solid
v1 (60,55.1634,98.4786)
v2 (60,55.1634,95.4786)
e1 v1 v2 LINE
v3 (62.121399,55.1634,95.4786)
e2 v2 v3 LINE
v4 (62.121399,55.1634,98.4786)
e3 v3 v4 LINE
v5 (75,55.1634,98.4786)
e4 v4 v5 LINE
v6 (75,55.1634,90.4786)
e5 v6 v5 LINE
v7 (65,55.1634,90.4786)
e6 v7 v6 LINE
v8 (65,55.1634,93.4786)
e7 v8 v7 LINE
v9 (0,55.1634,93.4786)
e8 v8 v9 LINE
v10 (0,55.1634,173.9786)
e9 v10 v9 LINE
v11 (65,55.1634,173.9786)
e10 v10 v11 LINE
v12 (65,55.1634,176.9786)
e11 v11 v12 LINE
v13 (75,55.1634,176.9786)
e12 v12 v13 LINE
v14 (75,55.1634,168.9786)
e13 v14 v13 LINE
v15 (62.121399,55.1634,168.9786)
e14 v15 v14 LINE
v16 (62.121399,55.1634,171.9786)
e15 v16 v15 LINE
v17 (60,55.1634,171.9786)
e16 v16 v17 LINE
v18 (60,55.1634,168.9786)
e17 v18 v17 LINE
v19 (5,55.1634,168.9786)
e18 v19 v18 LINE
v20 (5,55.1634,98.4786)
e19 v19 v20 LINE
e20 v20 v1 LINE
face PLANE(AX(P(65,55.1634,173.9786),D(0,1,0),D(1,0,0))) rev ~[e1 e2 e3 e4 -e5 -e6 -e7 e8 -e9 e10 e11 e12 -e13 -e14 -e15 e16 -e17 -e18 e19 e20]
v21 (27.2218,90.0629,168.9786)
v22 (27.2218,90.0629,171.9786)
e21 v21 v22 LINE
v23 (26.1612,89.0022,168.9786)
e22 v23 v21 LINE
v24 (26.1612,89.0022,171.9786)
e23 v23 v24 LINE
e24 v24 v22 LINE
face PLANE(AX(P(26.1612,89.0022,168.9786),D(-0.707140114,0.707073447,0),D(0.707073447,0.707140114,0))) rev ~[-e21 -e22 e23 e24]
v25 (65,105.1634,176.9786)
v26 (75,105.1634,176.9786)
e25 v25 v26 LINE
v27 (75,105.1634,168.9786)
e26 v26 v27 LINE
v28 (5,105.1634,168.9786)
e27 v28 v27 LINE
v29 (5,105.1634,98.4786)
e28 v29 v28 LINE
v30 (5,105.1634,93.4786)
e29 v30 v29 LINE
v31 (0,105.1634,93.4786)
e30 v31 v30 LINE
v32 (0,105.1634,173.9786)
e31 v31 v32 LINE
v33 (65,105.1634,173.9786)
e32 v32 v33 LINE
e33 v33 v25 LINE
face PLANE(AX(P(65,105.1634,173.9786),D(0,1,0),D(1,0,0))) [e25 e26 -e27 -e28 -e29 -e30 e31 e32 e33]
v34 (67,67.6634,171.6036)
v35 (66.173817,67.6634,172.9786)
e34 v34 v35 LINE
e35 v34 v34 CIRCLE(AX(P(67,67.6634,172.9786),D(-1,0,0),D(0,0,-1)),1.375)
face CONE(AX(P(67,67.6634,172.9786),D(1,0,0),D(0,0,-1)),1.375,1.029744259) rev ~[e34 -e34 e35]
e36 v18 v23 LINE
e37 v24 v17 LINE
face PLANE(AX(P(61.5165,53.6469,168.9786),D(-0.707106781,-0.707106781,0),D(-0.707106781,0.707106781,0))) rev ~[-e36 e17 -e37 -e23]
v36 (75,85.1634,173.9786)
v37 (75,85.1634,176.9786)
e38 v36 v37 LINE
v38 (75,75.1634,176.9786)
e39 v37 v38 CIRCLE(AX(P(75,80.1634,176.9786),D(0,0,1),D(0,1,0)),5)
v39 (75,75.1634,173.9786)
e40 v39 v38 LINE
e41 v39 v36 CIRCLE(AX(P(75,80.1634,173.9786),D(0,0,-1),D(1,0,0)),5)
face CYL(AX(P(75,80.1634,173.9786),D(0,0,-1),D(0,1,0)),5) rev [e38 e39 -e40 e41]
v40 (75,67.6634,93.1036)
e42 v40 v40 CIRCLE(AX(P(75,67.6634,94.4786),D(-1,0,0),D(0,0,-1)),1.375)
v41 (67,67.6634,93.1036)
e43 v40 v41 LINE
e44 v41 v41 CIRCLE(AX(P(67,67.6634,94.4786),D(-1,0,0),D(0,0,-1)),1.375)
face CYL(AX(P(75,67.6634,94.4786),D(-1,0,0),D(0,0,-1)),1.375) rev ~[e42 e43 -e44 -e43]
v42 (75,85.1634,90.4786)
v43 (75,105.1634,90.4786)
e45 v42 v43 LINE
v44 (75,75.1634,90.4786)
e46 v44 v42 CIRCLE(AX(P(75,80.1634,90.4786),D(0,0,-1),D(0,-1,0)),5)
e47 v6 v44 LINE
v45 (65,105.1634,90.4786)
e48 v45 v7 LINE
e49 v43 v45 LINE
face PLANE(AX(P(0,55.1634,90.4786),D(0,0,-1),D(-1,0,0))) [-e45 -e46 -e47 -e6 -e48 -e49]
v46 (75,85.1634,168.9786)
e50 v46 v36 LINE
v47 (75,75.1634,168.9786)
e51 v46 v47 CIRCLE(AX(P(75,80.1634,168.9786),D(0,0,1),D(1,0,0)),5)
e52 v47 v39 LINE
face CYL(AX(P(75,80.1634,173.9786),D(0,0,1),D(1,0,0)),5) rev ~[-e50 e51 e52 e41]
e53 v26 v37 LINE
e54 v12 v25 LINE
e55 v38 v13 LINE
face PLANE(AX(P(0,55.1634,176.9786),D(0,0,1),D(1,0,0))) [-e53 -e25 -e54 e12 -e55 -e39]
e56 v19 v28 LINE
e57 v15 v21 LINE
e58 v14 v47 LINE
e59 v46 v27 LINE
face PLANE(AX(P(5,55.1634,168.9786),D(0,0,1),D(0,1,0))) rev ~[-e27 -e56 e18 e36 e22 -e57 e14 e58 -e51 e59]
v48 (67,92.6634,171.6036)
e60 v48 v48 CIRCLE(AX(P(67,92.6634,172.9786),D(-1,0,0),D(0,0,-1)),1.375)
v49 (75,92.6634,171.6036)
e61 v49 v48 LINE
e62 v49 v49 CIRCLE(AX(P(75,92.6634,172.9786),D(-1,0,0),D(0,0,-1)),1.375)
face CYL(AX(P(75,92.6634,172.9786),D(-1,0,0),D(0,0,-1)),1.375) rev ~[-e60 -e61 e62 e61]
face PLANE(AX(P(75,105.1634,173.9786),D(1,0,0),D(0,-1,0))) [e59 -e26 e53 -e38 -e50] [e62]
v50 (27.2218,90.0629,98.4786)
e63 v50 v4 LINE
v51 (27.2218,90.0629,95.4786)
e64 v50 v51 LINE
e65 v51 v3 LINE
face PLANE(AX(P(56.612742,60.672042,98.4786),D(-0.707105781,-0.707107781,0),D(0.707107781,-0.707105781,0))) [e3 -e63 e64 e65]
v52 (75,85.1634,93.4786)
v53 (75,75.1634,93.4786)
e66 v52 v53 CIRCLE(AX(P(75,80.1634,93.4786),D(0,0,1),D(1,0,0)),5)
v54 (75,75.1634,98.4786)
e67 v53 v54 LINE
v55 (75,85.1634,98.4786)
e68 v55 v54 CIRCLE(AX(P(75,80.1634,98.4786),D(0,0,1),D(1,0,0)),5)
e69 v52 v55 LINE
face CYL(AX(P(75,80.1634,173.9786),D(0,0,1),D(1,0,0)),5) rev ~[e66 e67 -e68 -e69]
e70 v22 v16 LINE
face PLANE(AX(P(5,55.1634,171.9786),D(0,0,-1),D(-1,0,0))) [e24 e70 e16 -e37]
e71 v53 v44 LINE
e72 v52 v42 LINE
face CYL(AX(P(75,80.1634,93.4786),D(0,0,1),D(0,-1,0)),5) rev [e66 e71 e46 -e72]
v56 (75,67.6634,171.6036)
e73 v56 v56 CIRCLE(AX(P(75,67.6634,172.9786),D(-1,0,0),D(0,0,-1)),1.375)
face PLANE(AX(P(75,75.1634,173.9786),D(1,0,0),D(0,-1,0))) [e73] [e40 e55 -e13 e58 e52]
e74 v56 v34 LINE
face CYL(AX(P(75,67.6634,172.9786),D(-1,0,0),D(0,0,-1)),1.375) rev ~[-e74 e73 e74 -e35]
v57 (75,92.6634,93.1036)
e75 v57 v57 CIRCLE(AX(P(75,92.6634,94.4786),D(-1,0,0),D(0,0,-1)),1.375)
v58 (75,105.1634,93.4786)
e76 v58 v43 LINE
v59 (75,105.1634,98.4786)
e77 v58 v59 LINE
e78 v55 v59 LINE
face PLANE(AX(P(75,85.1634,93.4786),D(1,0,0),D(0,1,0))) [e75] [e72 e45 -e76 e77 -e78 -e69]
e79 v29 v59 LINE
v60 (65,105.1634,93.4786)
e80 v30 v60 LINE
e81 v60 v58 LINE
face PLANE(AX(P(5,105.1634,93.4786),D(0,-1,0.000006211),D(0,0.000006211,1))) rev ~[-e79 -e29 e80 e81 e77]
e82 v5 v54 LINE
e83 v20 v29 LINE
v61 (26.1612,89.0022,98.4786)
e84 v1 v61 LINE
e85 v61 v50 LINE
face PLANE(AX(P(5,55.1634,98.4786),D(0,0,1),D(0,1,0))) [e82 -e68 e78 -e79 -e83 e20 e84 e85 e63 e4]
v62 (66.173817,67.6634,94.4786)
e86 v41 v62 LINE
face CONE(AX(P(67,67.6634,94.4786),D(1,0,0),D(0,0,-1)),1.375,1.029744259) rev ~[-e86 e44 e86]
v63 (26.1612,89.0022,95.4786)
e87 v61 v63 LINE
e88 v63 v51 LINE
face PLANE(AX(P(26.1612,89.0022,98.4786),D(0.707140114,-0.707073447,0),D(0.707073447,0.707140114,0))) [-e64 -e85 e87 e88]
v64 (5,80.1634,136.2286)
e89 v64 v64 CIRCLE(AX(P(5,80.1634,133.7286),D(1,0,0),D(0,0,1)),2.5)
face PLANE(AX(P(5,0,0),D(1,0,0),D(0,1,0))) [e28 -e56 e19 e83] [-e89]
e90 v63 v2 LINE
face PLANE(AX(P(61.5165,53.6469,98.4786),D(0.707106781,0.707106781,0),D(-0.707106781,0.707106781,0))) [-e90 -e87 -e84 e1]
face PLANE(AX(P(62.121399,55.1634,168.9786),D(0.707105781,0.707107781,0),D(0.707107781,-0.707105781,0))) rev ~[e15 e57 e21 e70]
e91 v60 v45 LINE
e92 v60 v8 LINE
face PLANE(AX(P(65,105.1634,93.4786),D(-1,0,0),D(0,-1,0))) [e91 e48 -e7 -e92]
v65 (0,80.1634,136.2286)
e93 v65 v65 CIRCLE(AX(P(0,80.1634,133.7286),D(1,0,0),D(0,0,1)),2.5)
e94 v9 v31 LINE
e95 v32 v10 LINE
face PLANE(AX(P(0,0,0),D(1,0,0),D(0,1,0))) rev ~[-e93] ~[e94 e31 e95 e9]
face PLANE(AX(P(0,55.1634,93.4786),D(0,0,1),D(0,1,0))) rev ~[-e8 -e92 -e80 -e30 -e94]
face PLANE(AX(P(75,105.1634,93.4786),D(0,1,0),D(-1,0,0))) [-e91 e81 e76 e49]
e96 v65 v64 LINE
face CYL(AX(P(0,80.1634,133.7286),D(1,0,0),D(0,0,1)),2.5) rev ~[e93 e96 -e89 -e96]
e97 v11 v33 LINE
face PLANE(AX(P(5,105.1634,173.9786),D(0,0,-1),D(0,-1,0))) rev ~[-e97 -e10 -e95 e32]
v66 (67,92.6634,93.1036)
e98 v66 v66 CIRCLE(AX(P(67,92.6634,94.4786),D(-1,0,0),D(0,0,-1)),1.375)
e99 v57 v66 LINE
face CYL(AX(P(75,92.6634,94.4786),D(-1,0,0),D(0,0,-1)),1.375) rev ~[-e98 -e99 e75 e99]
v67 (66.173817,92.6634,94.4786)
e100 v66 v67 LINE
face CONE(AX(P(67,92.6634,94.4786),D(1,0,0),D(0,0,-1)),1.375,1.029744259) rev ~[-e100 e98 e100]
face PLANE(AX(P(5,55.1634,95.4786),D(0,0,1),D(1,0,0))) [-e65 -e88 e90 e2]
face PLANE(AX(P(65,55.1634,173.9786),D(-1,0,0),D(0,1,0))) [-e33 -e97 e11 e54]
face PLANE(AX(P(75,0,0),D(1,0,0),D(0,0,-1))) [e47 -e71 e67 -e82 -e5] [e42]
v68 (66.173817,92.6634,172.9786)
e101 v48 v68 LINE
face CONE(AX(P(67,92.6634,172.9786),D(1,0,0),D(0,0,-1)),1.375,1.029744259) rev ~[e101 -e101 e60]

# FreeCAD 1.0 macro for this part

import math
import FreeCAD as App
import Part
import Sketcher
Q = App.Units.Quantity

doc = App.newDocument("Part")
params = doc.addObject("Spreadsheet::Sheet", "Params")
for row, (alias, value) in enumerate([
    ("sketch1_width", "50 mm"),
    ("sketch1_height", "80.5 mm"),
    ("pad1_length", "5 mm"),
    ("sketch2_height", "5 mm"),
    ("sketch2_width", "50 mm"),
    ("pad2_length", "70 mm"),
    ("sketch3_length", "50 mm"),
    ("sketch3_length2", "1.5 mm"),
    ("pocket1_length", "3 mm"),
    ("sketch4_height", "5 mm"),
    ("sketch4_width", "50 mm"),
    ("pad3_length", "70 mm"),
    ("sketch5_length", "50 mm"),
    ("sketch5_length2", "1.5 mm"),
    ("pocket2_length", "3 mm"),
    ("sketch6_diameter", "5 mm"),
    ("hole_diameter", "5 mm"),
    ("sketch7_diameter", "10 mm"),
    ("sketch8_radius", "5 mm"),
    ("sketch8_width", "10 mm"),
    ("sketch8_height", "20 mm"),
    ("pad4_length", "3 mm"),
    ("sketch9_radius", "5 mm"),
    ("sketch9_width", "10 mm"),
    ("sketch9_height", "50 mm"),
    ("pad5_length", "3 mm"),
    ("sketch10_diameter", "2.75 mm"),
    ("hole2_diameter", "2.75 mm"),
    ("hole2_depth", "8 mm"),
    ("sketch11_diameter", "2.75 mm"),
    ("hole3_diameter", "2.75 mm"),
    ("hole3_depth", "8 mm"),
], start=1):
    params.set(f"A{row}", alias)
    params.set(f"B{row}", "=" + value)
    params.setAlias(f"B{row}", alias)

body = doc.addObject("PartDesign::Body", "Body")

# Sketch on YZ plane
sketch1 = body.newObject("Sketcher::SketchObject", "Sketch")
sketch1.AttachmentSupport = (doc.getObject("YZ_Plane"), [""])
sketch1.MapMode = "FlatFace"
sketch1.addGeometry([
    Part.LineSegment(App.Vector(105, 93, 0), App.Vector(105, 174, 0)),
    Part.LineSegment(App.Vector(105, 174, 0), App.Vector(55, 174, 0)),
    Part.LineSegment(App.Vector(55, 174, 0), App.Vector(55, 93, 0)),
    Part.LineSegment(App.Vector(55, 93, 0), App.Vector(105, 93, 0)),
], False)
sketch1.addConstraint([
    Sketcher.Constraint("Coincident", 0, 2, 1, 1),
    Sketcher.Constraint("Coincident", 1, 2, 2, 1),
    Sketcher.Constraint("Coincident", 2, 2, 3, 1),
    Sketcher.Constraint("Coincident", 3, 2, 0, 1),
    Sketcher.Constraint("Vertical", 0),
    Sketcher.Constraint("Horizontal", 1),
    Sketcher.Constraint("Vertical", 2),
    Sketcher.Constraint("Horizontal", 3),
    Sketcher.Constraint("DistanceX", 1, 2, 1, 1, 50.0),
    Sketcher.Constraint("DistanceY", 0, 1, 0, 2, 80.5),
    Sketcher.Constraint("DistanceX", -1, 1, 0, 2, 105.1634),
    Sketcher.Constraint("DistanceY", -1, 1, 0, 2, 173.9786),
])
sketch1.setExpression("Constraints[8]", "Params.sketch1_width")
sketch1.setExpression("Constraints[9]", "Params.sketch1_height")
pad1 = body.newObject("PartDesign::Pad", "Pad")
pad1.Profile = sketch1
pad1.setExpression("Length", "Params.pad1_length")

# Sketch on YZ plane
sketch2 = body.newObject("Sketcher::SketchObject", "Sketch001")
sketch2.AttachmentSupport = (doc.getObject("YZ_Plane"), [""])
sketch2.MapMode = "FlatFace"
sketch2.AttachmentOffset = App.Placement(App.Vector(0, 0, 5), App.Rotation())
sketch2.addGeometry([
    Part.LineSegment(App.Vector(105, 93, 0), App.Vector(105, 98, 0)),
    Part.LineSegment(App.Vector(105, 98, 0), App.Vector(55, 98, 0)),
    Part.LineSegment(App.Vector(55, 98, 0), App.Vector(55, 93, 0)),
    Part.LineSegment(App.Vector(55, 93, 0), App.Vector(105, 93, 0)),
], False)
sketch2.addConstraint([
    Sketcher.Constraint("Coincident", 0, 2, 1, 1),
    Sketcher.Constraint("Coincident", 1, 2, 2, 1),
    Sketcher.Constraint("Coincident", 2, 2, 3, 1),
    Sketcher.Constraint("Coincident", 3, 2, 0, 1),
    Sketcher.Constraint("Vertical", 0),
    Sketcher.Constraint("Horizontal", 1),
    Sketcher.Constraint("Vertical", 2),
    Sketcher.Constraint("Horizontal", 3),
    Sketcher.Constraint("DistanceY", 0, 1, 0, 2, 5.0),
    Sketcher.Constraint("DistanceX", 1, 2, 1, 1, 50.0),
    Sketcher.Constraint("DistanceX", -1, 1, 0, 2, 105.1634),
    Sketcher.Constraint("DistanceY", -1, 1, 0, 2, 98.4786),
])
sketch2.setExpression("Constraints[8]", "Params.sketch2_height")
sketch2.setExpression("Constraints[9]", "Params.sketch2_width")
pad2 = body.newObject("PartDesign::Pad", "Pad001")
pad2.Profile = sketch2
pad2.setExpression("Length", "Params.pad2_length")

# Sketch on XY plane
sketch3 = body.newObject("Sketcher::SketchObject", "Sketch002")
sketch3.AttachmentSupport = (doc.getObject("XY_Plane"), [""])
sketch3.MapMode = "FlatFace"
sketch3.AttachmentOffset = App.Placement(App.Vector(0, 0, 98.4786), App.Rotation())
sketch3.addGeometry([
    Part.LineSegment(App.Vector(27.2, 90.1, 0), App.Vector(26.2, 89, 0)),
    Part.LineSegment(App.Vector(26.2, 89, 0), App.Vector(61.5, 53.6, 0)),
    Part.LineSegment(App.Vector(61.5, 53.6, 0), App.Vector(62.6, 54.7, 0)),
    Part.LineSegment(App.Vector(62.6, 54.7, 0), App.Vector(27.2, 90.1, 0)),
], False)
sketch3.addConstraint([
    Sketcher.Constraint("Coincident", 0, 2, 1, 1),
    Sketcher.Constraint("Coincident", 1, 2, 2, 1),
    Sketcher.Constraint("Coincident", 2, 2, 3, 1),
    Sketcher.Constraint("Coincident", 3, 2, 0, 1),
    Sketcher.Constraint("Perpendicular", 0, 1),
    Sketcher.Constraint("Perpendicular", 1, 2),
    Sketcher.Constraint("Perpendicular", 2, 3),
    Sketcher.Constraint("Angle", 1, Q("-45 deg")),
    Sketcher.Constraint("Distance", 1, 50.0),
    Sketcher.Constraint("Distance", 0, 1.5),
    Sketcher.Constraint("DistanceX", -1, 1, 0, 2, 26.1612),
    Sketcher.Constraint("DistanceY", -1, 1, 1, 2, 53.647),
])
sketch3.setExpression("Constraints[8]", "Params.sketch3_length")
sketch3.setExpression("Constraints[9]", "Params.sketch3_length2")
pocket1 = body.newObject("PartDesign::Pocket", "Pocket")
pocket1.Profile = sketch3
pocket1.setExpression("Length", "Params.pocket1_length")

# Sketch on YZ plane
sketch4 = body.newObject("Sketcher::SketchObject", "Sketch003")
sketch4.AttachmentSupport = (doc.getObject("YZ_Plane"), [""])
sketch4.MapMode = "FlatFace"
sketch4.AttachmentOffset = App.Placement(App.Vector(0, 0, 5), App.Rotation())
sketch4.addGeometry([
    Part.LineSegment(App.Vector(105, 169, 0), App.Vector(105, 174, 0)),
    Part.LineSegment(App.Vector(105, 174, 0), App.Vector(55, 174, 0)),
    Part.LineSegment(App.Vector(55, 174, 0), App.Vector(55, 169, 0)),
    Part.LineSegment(App.Vector(55, 169, 0), App.Vector(105, 169, 0)),
], False)
sketch4.addConstraint([
    Sketcher.Constraint("Coincident", 0, 2, 1, 1),
    Sketcher.Constraint("Coincident", 1, 2, 2, 1),
    Sketcher.Constraint("Coincident", 2, 2, 3, 1),
    Sketcher.Constraint("Coincident", 3, 2, 0, 1),
    Sketcher.Constraint("Vertical", 0),
    Sketcher.Constraint("Horizontal", 1),
    Sketcher.Constraint("Vertical", 2),
    Sketcher.Constraint("Horizontal", 3),
    Sketcher.Constraint("DistanceY", 0, 1, 0, 2, 5.0),
    Sketcher.Constraint("DistanceX", 1, 2, 1, 1, 50.0),
    Sketcher.Constraint("DistanceX", -1, 1, 0, 2, 105.1634),
    Sketcher.Constraint("DistanceY", -1, 1, 0, 2, 173.9786),
])
sketch4.setExpression("Constraints[8]", "Params.sketch4_height")
sketch4.setExpression("Constraints[9]", "Params.sketch4_width")
pad3 = body.newObject("PartDesign::Pad", "Pad002")
pad3.Profile = sketch4
pad3.setExpression("Length", "Params.pad3_length")

# Sketch on XY plane
sketch5 = body.newObject("Sketcher::SketchObject", "Sketch004")
sketch5.AttachmentSupport = (doc.getObject("XY_Plane"), [""])
sketch5.MapMode = "FlatFace"
sketch5.AttachmentOffset = App.Placement(App.Vector(0, 0, 168.9786), App.Rotation())
sketch5.addGeometry([
    Part.LineSegment(App.Vector(62.6, 54.7, 0), App.Vector(61.5, 53.6, 0)),
    Part.LineSegment(App.Vector(61.5, 53.6, 0), App.Vector(26.2, 89, 0)),
    Part.LineSegment(App.Vector(26.2, 89, 0), App.Vector(27.2, 90.1, 0)),
    Part.LineSegment(App.Vector(27.2, 90.1, 0), App.Vector(62.6, 54.7, 0)),
], False)
sketch5.addConstraint([
    Sketcher.Constraint("Coincident", 0, 2, 1, 1),
    Sketcher.Constraint("Coincident", 1, 2, 2, 1),
    Sketcher.Constraint("Coincident", 2, 2, 3, 1),
    Sketcher.Constraint("Coincident", 3, 2, 0, 1),
    Sketcher.Constraint("Perpendicular", 0, 1),
    Sketcher.Constraint("Perpendicular", 1, 2),
    Sketcher.Constraint("Perpendicular", 2, 3),
    Sketcher.Constraint("Angle", 3, Q("-45 deg")),
    Sketcher.Constraint("Distance", 1, 50.0),
    Sketcher.Constraint("Distance", 0, 1.5),
    Sketcher.Constraint("DistanceY", -1, 1, 0, 2, 53.647),
    Sketcher.Constraint("DistanceX", -1, 1, 0, 2, 61.5165),
])
sketch5.setExpression("Constraints[8]", "Params.sketch5_length")
sketch5.setExpression("Constraints[9]", "Params.sketch5_length2")
pocket2 = body.newObject("PartDesign::Pocket", "Pocket001")
pocket2.Profile = sketch5
pocket2.setExpression("Length", "Params.pocket2_length")
pocket2.Reversed = True

# Sketch on YZ plane
sketch6 = body.newObject("Sketcher::SketchObject", "Sketch005")
sketch6.AttachmentSupport = (doc.getObject("YZ_Plane"), [""])
sketch6.MapMode = "FlatFace"
sketch6.addGeometry(Part.Circle(App.Vector(80.2, 133.7, 0), App.Vector(0, 0, 1), 2.5), False)
sketch6.addConstraint([
    Sketcher.Constraint("Diameter", 0, 5.0),
    Sketcher.Constraint("DistanceX", -1, 1, 0, 3, 80.1634),
    Sketcher.Constraint("DistanceY", -1, 1, 0, 3, 133.7286),
])
sketch6.setExpression("Constraints[0]", "Params.sketch6_diameter")
doc.recompute()
hole = body.newObject("PartDesign::Hole", "Hole")
hole.Profile = sketch6
hole.ThreadType = "None"
hole.setExpression("Diameter", "Params.hole_diameter")
hole.DepthType = "ThroughAll"
hole.Reversed = True

# Sketch on XY plane
sketch7 = body.newObject("Sketcher::SketchObject", "Sketch006")
sketch7.AttachmentSupport = (doc.getObject("XY_Plane"), [""])
sketch7.MapMode = "FlatFace"
sketch7.AttachmentOffset = App.Placement(App.Vector(0, 0, 173.9786), App.Rotation())
sketch7.addGeometry(Part.Circle(App.Vector(75, 80, 0), App.Vector(0, 0, 1), 5), False)
sketch7.addConstraint([
    Sketcher.Constraint("Diameter", 0, 10.0),
    Sketcher.Constraint("DistanceX", -1, 1, 0, 3, 75.0),
    Sketcher.Constraint("DistanceY", -1, 1, 0, 3, 80.1634),
])
sketch7.setExpression("Constraints[0]", "Params.sketch7_diameter")
pocket3 = body.newObject("PartDesign::Pocket", "Pocket002")
pocket3.Profile = sketch7
pocket3.Type = "ThroughAll"

# Sketch on XY plane
sketch8 = body.newObject("Sketcher::SketchObject", "Sketch007")
sketch8.AttachmentSupport = (doc.getObject("XY_Plane"), [""])
sketch8.MapMode = "FlatFace"
sketch8.AttachmentOffset = App.Placement(App.Vector(0, 0, 93.4786), App.Rotation())
sketch8.addGeometry([
    Part.LineSegment(App.Vector(75, 105, 0), App.Vector(75, 85, 0)),  # 0
    Part.ArcOfCircle(Part.Circle(App.Vector(75, 80, 0), App.Vector(0, 0, 1), 5), math.radians(90), math.radians(270)),  # 1
    Part.LineSegment(App.Vector(75, 75, 0), App.Vector(75, 55, 0)),  # 2
    Part.LineSegment(App.Vector(75, 55, 0), App.Vector(65, 55, 0)),  # 3
    Part.LineSegment(App.Vector(65, 55, 0), App.Vector(65, 105, 0)),  # 4
    Part.LineSegment(App.Vector(65, 105, 0), App.Vector(75, 105, 0)),  # 5
], False)
sketch8.addConstraint([
    Sketcher.Constraint("Coincident", 0, 2, 1, 1),
    Sketcher.Constraint("Coincident", 1, 2, 2, 1),
    Sketcher.Constraint("Coincident", 2, 2, 3, 1),
    Sketcher.Constraint("Coincident", 3, 2, 4, 1),
    Sketcher.Constraint("Coincident", 4, 2, 5, 1),
    Sketcher.Constraint("Coincident", 5, 2, 0, 1),
    Sketcher.Constraint("Vertical", 0),
    Sketcher.Constraint("Vertical", 2),
    Sketcher.Constraint("Horizontal", 3),
    Sketcher.Constraint("Vertical", 4),
    Sketcher.Constraint("Horizontal", 5),
    Sketcher.Constraint("Vertical", 1, 3, 0, 2),
    Sketcher.Constraint("Vertical", 0, 2, 1, 2),
    Sketcher.Constraint("Equal", 0, 2),
    Sketcher.Constraint("Radius", 1, 5.0),
    Sketcher.Constraint("DistanceX", 3, 2, 3, 1, 10.0),
    Sketcher.Constraint("DistanceY", 0, 2, 0, 1, 20.0),
    Sketcher.Constraint("DistanceX", -1, 1, 1, 3, 75.0),
    Sketcher.Constraint("DistanceY", -1, 1, 1, 3, 80.1634),
])
sketch8.setExpression("Constraints[14]", "Params.sketch8_radius")
sketch8.setExpression("Constraints[15]", "Params.sketch8_width")
sketch8.setExpression("Constraints[16]", "Params.sketch8_height")
pad4 = body.newObject("PartDesign::Pad", "Pad003")
pad4.Profile = sketch8
pad4.setExpression("Length", "Params.pad4_length")
pad4.Reversed = True

# Sketch on XY plane
sketch9 = body.newObject("Sketcher::SketchObject", "Sketch008")
sketch9.AttachmentSupport = (doc.getObject("XY_Plane"), [""])
sketch9.MapMode = "FlatFace"
sketch9.AttachmentOffset = App.Placement(App.Vector(0, 0, 173.9786), App.Rotation())
sketch9.addGeometry([
    Part.LineSegment(App.Vector(65, 105, 0), App.Vector(65, 55, 0)),  # 0
    Part.LineSegment(App.Vector(65, 55, 0), App.Vector(75, 55, 0)),  # 1
    Part.LineSegment(App.Vector(75, 55, 0), App.Vector(75, 75, 0)),  # 2
    Part.ArcOfCircle(Part.Circle(App.Vector(75, 80, 0), App.Vector(0, 0, 1), 5), math.radians(90), math.radians(270)),  # 3
    Part.LineSegment(App.Vector(75, 85, 0), App.Vector(75, 105, 0)),  # 4
    Part.LineSegment(App.Vector(75, 105, 0), App.Vector(65, 105, 0)),  # 5
], False)
sketch9.addConstraint([
    Sketcher.Constraint("Coincident", 0, 2, 1, 1),
    Sketcher.Constraint("Coincident", 1, 2, 2, 1),
    Sketcher.Constraint("Coincident", 2, 2, 3, 2),
    Sketcher.Constraint("Coincident", 3, 1, 4, 1),
    Sketcher.Constraint("Coincident", 4, 2, 5, 1),
    Sketcher.Constraint("Coincident", 5, 2, 0, 1),
    Sketcher.Constraint("Vertical", 0),
    Sketcher.Constraint("Horizontal", 1),
    Sketcher.Constraint("Vertical", 2),
    Sketcher.Constraint("Vertical", 4),
    Sketcher.Constraint("Horizontal", 5),
    Sketcher.Constraint("Vertical", 3, 3, 1, 2),
    Sketcher.Constraint("Vertical", 2, 2, 3, 1),
    Sketcher.Constraint("Equal", 2, 4),
    Sketcher.Constraint("Radius", 3, 5.0),
    Sketcher.Constraint("DistanceX", 1, 1, 1, 2, 10.0),
    Sketcher.Constraint("DistanceY", 0, 2, 0, 1, 50.0),
    Sketcher.Constraint("DistanceX", -1, 1, 3, 3, 75.0),
    Sketcher.Constraint("DistanceY", -1, 1, 3, 3, 80.1634),
])
sketch9.setExpression("Constraints[14]", "Params.sketch9_radius")
sketch9.setExpression("Constraints[15]", "Params.sketch9_width")
sketch9.setExpression("Constraints[16]", "Params.sketch9_height")
pad5 = body.newObject("PartDesign::Pad", "Pad004")
pad5.Profile = sketch9
pad5.setExpression("Length", "Params.pad5_length")

# Sketch on YZ plane
sketch10 = body.newObject("Sketcher::SketchObject", "Sketch009")
sketch10.AttachmentSupport = (doc.getObject("YZ_Plane"), [""])
sketch10.MapMode = "FlatFace"
sketch10.AttachmentOffset = App.Placement(App.Vector(0, 0, 75), App.Rotation())
sketch10.addGeometry([
    Part.Circle(App.Vector(92.7, 94.5, 0), App.Vector(0, 0, 1), 1.4),
    Part.Circle(App.Vector(67.7, 94.5, 0), App.Vector(0, 0, 1), 1.4),
], False)
sketch10.addConstraint([
    Sketcher.Constraint("Equal", 0, 1),
    Sketcher.Constraint("Horizontal", 0, 3, 1, 3),
    Sketcher.Constraint("Diameter", 0, 2.75),
    Sketcher.Constraint("DistanceX", 1, 3, 0, 3, 25.0),
    Sketcher.Constraint("DistanceX", -1, 1, 0, 3, 92.6634),
    Sketcher.Constraint("DistanceY", -1, 1, 0, 3, 94.4786),
])
sketch10.setExpression("Constraints[2]", "Params.sketch10_diameter")
doc.recompute()
hole2 = body.newObject("PartDesign::Hole", "Hole001")
hole2.Profile = sketch10
hole2.ThreadType = "None"
hole2.setExpression("Diameter", "Params.hole2_diameter")
hole2.DepthType = "Dimension"
hole2.setExpression("Depth", "Params.hole2_depth")
hole2.DrillPoint = "Angled"
hole2.DrillPointAngle = 118

# Sketch on YZ plane
sketch11 = body.newObject("Sketcher::SketchObject", "Sketch010")
sketch11.AttachmentSupport = (doc.getObject("YZ_Plane"), [""])
sketch11.MapMode = "FlatFace"
sketch11.AttachmentOffset = App.Placement(App.Vector(0, 0, 75), App.Rotation())
sketch11.addGeometry([
    Part.Circle(App.Vector(67.7, 173, 0), App.Vector(0, 0, 1), 1.4),
    Part.Circle(App.Vector(92.7, 173, 0), App.Vector(0, 0, 1), 1.4),
], False)
sketch11.addConstraint([
    Sketcher.Constraint("Equal", 0, 1),
    Sketcher.Constraint("Horizontal", 0, 3, 1, 3),
    Sketcher.Constraint("Diameter", 0, 2.75),
    Sketcher.Constraint("DistanceX", 0, 3, 1, 3, 25.0),
    Sketcher.Constraint("DistanceX", -1, 1, 0, 3, 67.6634),
    Sketcher.Constraint("DistanceY", -1, 1, 0, 3, 172.9786),
])
sketch11.setExpression("Constraints[2]", "Params.sketch11_diameter")
doc.recompute()
hole3 = body.newObject("PartDesign::Hole", "Hole002")
hole3.Profile = sketch11
hole3.ThreadType = "None"
hole3.setExpression("Diameter", "Params.hole3_diameter")
hole3.DepthType = "Dimension"
hole3.setExpression("Depth", "Params.hole3_depth")
hole3.DrillPoint = "Angled"
hole3.DrillPointAngle = 118

doc.recompute()
